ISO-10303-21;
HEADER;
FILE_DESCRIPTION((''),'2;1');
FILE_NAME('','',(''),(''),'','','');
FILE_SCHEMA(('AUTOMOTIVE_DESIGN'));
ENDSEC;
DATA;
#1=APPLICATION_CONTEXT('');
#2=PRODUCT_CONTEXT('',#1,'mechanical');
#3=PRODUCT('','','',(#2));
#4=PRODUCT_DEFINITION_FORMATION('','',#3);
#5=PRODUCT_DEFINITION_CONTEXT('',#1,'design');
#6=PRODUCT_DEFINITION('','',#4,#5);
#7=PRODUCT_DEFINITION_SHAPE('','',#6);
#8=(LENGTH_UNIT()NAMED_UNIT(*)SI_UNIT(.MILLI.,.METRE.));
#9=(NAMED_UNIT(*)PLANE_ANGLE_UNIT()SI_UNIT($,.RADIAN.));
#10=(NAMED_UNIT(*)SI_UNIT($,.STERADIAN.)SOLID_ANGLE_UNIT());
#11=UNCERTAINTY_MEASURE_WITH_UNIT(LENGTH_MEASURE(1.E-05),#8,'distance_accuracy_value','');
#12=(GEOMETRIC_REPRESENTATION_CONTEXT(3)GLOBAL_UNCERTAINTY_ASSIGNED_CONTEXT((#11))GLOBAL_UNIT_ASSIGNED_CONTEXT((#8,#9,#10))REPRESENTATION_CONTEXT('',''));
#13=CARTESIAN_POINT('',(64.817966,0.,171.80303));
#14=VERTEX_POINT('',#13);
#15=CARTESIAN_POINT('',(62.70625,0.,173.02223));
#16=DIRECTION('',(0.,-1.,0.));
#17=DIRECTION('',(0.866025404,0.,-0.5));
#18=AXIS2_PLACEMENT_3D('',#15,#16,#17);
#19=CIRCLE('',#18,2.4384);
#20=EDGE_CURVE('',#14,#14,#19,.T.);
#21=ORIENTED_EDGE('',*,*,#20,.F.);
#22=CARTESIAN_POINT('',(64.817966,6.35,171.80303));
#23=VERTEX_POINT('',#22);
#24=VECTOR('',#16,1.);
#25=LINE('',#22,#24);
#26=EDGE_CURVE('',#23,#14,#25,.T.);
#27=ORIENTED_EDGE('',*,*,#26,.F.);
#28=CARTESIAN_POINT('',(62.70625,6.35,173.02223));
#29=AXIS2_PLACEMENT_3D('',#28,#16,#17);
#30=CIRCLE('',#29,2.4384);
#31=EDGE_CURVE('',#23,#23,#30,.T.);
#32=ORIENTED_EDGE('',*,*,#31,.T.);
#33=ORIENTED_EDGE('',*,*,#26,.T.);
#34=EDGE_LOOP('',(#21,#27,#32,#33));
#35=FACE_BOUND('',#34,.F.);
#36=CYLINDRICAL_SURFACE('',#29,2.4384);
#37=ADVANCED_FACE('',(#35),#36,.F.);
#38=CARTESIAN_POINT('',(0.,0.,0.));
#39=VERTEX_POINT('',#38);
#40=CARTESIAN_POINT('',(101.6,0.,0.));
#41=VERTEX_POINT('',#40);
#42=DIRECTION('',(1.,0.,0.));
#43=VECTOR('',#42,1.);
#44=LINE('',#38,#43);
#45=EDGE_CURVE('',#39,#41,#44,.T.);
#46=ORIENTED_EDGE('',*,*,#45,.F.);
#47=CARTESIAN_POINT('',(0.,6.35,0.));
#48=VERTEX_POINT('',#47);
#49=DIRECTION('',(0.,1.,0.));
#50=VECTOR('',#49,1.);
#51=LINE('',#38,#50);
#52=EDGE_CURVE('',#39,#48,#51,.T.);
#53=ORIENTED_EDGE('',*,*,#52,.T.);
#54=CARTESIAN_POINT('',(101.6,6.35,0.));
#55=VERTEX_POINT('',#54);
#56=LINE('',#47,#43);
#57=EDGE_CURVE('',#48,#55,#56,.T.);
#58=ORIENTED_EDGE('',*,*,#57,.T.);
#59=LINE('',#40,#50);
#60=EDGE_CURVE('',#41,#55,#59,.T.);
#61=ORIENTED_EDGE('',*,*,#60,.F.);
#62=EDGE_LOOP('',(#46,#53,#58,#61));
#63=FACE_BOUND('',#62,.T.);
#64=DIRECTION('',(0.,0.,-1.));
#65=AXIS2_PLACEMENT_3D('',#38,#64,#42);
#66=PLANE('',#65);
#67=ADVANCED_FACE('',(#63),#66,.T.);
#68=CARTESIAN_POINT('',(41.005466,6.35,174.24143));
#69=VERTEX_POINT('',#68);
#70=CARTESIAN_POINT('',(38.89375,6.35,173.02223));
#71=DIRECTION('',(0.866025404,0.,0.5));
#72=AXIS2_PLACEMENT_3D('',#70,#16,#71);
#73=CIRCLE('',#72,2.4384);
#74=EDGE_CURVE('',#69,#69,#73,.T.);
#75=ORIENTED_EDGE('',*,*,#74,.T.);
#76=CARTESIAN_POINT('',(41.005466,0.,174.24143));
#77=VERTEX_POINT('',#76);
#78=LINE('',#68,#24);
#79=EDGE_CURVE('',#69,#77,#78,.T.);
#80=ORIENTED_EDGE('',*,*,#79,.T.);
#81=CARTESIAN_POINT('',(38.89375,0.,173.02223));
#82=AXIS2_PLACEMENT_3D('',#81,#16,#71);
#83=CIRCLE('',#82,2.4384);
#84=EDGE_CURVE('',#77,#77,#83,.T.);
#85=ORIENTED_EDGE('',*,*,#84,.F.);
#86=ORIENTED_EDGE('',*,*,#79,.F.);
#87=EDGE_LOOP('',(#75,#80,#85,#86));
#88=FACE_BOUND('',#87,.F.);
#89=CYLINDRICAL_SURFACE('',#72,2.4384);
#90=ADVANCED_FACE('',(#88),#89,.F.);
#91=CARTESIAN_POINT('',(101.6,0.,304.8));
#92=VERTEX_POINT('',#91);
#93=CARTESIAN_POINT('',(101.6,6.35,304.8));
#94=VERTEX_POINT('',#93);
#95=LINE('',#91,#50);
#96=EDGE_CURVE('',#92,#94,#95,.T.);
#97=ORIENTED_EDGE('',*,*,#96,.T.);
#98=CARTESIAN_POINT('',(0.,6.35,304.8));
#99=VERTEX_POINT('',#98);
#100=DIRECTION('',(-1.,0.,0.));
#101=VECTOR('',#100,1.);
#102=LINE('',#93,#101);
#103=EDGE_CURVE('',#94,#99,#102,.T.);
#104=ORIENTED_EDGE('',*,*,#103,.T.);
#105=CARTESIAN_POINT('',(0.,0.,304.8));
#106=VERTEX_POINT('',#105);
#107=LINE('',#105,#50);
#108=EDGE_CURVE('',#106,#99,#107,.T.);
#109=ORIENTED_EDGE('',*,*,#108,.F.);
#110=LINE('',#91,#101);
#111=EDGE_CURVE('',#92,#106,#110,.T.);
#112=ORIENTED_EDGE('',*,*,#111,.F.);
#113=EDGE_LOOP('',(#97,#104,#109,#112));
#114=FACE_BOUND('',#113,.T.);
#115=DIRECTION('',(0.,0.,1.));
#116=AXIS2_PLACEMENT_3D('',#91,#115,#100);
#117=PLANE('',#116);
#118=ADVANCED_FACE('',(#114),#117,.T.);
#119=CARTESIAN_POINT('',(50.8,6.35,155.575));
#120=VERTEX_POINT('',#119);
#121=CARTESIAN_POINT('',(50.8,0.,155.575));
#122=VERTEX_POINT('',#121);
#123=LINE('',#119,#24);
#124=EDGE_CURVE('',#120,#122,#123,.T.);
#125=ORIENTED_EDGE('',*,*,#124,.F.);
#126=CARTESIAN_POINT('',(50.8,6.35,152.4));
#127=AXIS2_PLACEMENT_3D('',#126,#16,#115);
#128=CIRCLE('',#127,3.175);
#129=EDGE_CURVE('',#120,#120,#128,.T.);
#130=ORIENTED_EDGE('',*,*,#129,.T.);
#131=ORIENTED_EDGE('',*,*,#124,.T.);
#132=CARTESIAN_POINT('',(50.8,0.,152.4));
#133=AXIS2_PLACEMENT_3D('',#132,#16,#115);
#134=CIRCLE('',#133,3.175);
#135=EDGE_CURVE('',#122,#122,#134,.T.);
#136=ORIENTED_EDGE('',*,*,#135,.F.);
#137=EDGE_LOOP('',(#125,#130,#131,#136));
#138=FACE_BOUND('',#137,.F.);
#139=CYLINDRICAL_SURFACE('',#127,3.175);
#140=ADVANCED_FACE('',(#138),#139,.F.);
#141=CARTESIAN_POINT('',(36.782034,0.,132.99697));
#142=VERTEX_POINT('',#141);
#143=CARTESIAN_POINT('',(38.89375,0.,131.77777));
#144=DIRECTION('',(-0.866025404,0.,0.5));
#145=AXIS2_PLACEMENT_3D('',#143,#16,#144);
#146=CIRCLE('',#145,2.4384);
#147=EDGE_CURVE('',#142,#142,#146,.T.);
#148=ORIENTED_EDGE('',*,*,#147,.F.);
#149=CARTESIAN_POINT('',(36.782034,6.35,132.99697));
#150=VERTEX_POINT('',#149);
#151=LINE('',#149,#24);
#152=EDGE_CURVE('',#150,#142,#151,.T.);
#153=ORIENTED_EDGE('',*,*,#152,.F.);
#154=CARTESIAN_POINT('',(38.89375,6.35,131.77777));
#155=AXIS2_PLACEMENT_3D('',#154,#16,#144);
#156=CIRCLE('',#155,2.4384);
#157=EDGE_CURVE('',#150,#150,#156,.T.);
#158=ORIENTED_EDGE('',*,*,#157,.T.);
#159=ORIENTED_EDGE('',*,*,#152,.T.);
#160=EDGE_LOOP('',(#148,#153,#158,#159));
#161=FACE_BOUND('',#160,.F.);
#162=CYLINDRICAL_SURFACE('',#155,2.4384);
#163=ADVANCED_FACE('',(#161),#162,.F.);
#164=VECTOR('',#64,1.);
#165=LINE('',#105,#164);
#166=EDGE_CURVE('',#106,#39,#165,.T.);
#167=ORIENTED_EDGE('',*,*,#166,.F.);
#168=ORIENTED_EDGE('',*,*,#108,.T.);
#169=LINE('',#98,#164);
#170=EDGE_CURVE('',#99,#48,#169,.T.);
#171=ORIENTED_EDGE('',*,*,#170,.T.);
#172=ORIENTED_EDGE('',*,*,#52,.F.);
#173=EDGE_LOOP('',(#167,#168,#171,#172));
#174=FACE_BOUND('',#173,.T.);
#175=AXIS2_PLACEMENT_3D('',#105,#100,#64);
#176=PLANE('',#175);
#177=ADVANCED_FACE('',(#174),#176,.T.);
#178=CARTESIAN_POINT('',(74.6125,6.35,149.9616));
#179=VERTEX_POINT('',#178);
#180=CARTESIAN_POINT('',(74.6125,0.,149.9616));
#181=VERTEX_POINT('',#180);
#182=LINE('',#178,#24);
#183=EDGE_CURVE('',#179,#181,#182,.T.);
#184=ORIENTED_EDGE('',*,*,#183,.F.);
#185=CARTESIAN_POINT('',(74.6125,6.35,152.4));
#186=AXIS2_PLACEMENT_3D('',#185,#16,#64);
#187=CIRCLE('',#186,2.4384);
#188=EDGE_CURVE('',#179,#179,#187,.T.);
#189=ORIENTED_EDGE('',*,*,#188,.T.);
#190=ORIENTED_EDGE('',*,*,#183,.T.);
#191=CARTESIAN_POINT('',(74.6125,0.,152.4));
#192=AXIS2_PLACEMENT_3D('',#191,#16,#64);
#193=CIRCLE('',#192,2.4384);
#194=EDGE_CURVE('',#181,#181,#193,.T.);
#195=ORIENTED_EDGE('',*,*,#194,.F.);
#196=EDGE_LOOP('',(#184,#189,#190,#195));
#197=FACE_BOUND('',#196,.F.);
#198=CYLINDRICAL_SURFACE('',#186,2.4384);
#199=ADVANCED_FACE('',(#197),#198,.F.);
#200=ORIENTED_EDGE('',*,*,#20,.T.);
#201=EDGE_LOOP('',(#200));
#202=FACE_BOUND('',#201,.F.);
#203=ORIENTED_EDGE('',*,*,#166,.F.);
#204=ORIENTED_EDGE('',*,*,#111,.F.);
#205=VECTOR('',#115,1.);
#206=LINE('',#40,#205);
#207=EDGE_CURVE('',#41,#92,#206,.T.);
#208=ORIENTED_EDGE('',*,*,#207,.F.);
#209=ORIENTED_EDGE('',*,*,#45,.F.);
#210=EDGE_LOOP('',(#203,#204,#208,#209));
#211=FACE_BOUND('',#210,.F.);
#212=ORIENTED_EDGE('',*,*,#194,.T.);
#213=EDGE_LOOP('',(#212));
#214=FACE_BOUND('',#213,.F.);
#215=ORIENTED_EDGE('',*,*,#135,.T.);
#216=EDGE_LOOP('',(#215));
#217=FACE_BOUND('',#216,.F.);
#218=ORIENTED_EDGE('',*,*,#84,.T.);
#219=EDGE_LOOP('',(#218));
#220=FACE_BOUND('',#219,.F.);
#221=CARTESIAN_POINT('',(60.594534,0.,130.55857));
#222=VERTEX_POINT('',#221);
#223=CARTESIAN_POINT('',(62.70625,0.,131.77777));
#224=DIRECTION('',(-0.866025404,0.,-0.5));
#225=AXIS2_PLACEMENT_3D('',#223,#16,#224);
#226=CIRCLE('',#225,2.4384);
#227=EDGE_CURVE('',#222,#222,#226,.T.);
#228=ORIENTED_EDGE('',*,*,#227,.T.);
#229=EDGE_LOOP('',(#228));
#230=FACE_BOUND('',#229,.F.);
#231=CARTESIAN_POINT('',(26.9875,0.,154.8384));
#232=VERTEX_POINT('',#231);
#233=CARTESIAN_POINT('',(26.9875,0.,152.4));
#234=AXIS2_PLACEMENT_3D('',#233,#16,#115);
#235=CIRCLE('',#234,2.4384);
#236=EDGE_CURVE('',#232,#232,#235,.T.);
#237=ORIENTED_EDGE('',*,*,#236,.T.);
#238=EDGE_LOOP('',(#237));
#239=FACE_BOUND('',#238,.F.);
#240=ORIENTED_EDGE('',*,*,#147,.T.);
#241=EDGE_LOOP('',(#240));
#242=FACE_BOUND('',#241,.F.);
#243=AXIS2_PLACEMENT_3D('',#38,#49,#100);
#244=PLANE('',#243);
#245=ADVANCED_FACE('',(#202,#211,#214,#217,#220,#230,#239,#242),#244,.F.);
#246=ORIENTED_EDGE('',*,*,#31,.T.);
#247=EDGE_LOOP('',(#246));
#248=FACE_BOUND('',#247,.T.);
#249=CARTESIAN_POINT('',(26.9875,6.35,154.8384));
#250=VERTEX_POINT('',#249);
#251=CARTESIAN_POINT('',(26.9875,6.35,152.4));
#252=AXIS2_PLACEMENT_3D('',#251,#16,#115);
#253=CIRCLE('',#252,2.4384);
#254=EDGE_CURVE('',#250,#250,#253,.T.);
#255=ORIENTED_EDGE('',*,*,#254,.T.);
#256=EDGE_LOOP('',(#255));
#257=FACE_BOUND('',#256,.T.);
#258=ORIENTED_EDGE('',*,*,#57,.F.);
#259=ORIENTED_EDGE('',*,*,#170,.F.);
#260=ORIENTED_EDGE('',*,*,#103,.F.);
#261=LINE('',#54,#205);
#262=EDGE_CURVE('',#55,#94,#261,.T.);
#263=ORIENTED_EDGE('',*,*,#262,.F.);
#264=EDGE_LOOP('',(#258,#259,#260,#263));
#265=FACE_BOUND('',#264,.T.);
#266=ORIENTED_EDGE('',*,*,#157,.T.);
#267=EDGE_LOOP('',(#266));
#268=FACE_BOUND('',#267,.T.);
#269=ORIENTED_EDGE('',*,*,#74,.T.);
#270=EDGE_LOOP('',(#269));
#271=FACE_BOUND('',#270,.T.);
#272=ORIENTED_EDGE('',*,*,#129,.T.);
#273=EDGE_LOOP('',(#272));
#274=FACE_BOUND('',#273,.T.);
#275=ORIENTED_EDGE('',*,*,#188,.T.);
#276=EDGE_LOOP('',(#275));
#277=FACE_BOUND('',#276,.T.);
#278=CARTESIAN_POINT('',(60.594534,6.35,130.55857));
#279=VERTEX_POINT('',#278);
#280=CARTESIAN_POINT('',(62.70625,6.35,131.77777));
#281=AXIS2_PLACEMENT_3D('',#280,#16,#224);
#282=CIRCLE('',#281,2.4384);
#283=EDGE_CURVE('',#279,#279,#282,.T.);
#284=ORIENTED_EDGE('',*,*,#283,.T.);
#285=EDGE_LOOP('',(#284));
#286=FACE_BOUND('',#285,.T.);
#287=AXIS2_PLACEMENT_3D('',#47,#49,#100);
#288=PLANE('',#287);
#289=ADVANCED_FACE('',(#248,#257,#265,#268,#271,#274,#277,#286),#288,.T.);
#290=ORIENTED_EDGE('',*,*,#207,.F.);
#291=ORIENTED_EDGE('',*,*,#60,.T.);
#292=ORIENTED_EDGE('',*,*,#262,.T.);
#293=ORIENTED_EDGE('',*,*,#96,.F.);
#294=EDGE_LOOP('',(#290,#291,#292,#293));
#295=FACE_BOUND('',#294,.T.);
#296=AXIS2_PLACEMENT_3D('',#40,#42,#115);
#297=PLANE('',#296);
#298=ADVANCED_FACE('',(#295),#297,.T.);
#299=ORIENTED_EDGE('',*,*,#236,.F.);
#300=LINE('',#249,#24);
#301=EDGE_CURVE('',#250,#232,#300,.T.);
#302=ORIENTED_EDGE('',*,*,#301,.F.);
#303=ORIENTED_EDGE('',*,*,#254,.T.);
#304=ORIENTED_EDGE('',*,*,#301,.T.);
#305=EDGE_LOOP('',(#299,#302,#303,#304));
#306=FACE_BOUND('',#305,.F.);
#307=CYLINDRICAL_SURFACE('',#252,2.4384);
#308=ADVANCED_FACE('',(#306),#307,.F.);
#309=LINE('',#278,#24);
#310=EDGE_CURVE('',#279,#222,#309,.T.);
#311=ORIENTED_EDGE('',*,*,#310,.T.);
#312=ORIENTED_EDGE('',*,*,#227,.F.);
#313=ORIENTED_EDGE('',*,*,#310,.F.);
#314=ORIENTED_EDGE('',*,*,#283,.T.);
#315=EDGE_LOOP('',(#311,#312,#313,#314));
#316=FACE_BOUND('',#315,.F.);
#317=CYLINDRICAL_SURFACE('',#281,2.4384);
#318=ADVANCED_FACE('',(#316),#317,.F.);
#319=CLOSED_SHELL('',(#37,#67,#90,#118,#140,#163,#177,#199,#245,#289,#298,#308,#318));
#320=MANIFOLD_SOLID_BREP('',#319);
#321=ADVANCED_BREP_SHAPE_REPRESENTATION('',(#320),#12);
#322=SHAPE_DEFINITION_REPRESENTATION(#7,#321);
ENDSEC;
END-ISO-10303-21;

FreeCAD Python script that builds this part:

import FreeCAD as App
import Part
import Sketcher

V = App.Vector
Q = App.Units.Quantity

doc = App.newDocument("Part")
params = doc.addObject("Spreadsheet::Sheet", "Params")
for row, (alias, value) in enumerate([
    ("sketch1_width", "4 in"),
    ("sketch1_height", "12 in"),
    ("pad1_length", "0.25 in"),
    ("sketch2_diameter", "0.192 in"),
    ("hole_diameter", "0.192 in"),
    ("sketch3_diameter", "0.25 in"),
    ("hole2_diameter", "0.25 in"),
], start=1):
    params.set(f"A{row}", alias)
    params.set(f"B{row}", "=" + value)
    params.setAlias(f"B{row}", alias)

body = doc.addObject("PartDesign::Body", "Body")

# Sketch on XZ plane
sketch1 = body.newObject("Sketcher::SketchObject", "Sketch")
sketch1.AttachmentSupport = (doc.getObject("XZ_Plane"), [""])
sketch1.MapMode = "FlatFace"
sketch1.addGeometry([
    Part.LineSegment(V(102, 0, 0), V(0, 0, 0)),
    Part.LineSegment(V(0, 0, 0), V(0, 305, 0)),
    Part.LineSegment(V(0, 305, 0), V(102, 305, 0)),
    Part.LineSegment(V(102, 305, 0), V(102, 0, 0)),
], False)
sketch1.addConstraint([
    Sketcher.Constraint("Coincident", 0, 2, 1, 1),
    Sketcher.Constraint("Coincident", 1, 2, 2, 1),
    Sketcher.Constraint("Coincident", 2, 2, 3, 1),
    Sketcher.Constraint("Coincident", 3, 2, 0, 1),
    Sketcher.Constraint("Horizontal", 0),
    Sketcher.Constraint("Vertical", 1),
    Sketcher.Constraint("Horizontal", 2),
    Sketcher.Constraint("Vertical", 3),
    Sketcher.Constraint("Coincident", 0, 2, -1, 1),
    Sketcher.Constraint("DistanceX", 0, 2, 0, 1, Q("4 in")),
    Sketcher.Constraint("DistanceY", 1, 1, 1, 2, Q("12 in")),
])
sketch1.setExpression("Constraints[9]", "Params.sketch1_width")
sketch1.setExpression("Constraints[10]", "Params.sketch1_height")
pad1 = body.newObject("PartDesign::Pad", "Pad")
pad1.Profile = sketch1
pad1.setExpression("Length", "Params.pad1_length")
pad1.Reversed = True

# Sketch on XZ plane
sketch2 = body.newObject("Sketcher::SketchObject", "Sketch001")
sketch2.AttachmentSupport = (doc.getObject("XZ_Plane"), [""])
sketch2.MapMode = "FlatFace"
sketch2.AttachmentOffset = App.Placement(V(0, 0, -0.25 * 25.4), App.Rotation())
sketch2.addGeometry(Part.Circle(V(27, 152.4, 0), V(0, 0, 1), 2.4), False)
sketch2.addConstraint([
    Sketcher.Constraint("Diameter", 0, Q("0.192 in")),
    Sketcher.Constraint("DistanceY", -1, 1, 0, 3, Q("6 in")),
    Sketcher.Constraint("DistanceX", -1, 1, 0, 3, Q("1.0625 in")),
])
sketch2.setExpression("Constraints[0]", "Params.sketch2_diameter")
doc.recompute()
hole = body.newObject("PartDesign::Hole", "Hole")
hole.Profile = sketch2
hole.ThreadType = "None"
hole.setExpression("Diameter", "Params.hole_diameter")
hole.DepthType = "ThroughAll"
hole.Reversed = True

# Sketch on XZ plane
sketch3 = body.newObject("Sketcher::SketchObject", "Sketch002")
sketch3.AttachmentSupport = (doc.getObject("XZ_Plane"), [""])
sketch3.MapMode = "FlatFace"
sketch3.AttachmentOffset = App.Placement(V(0, 0, -0.25 * 25.4), App.Rotation())
sketch3.addGeometry(Part.Circle(V(50.8, 152.4, 0), V(0, 0, 1), 3.2), False)
sketch3.addConstraint([
    Sketcher.Constraint("Diameter", 0, Q("0.25 in")),
    Sketcher.Constraint("DistanceX", -1, 1, 0, 3, Q("2 in")),
    Sketcher.Constraint("DistanceY", -1, 1, 0, 3, Q("6 in")),
])
sketch3.setExpression("Constraints[0]", "Params.sketch3_diameter")
doc.recompute()
hole2 = body.newObject("PartDesign::Hole", "Hole001")
hole2.Profile = sketch3
hole2.ThreadType = "None"
hole2.setExpression("Diameter", "Params.hole2_diameter")
hole2.DepthType = "ThroughAll"
hole2.Reversed = True
doc.recompute()

datumline = body.newObject("PartDesign::Line", "DatumLine")
datumline.Placement = App.Placement(V(50.8, 0, 152.4), App.Rotation(V(0, 0, 1), V(0, 1, 0)))
polarpattern = body.newObject("PartDesign::PolarPattern", "PolarPattern")
polarpattern.Originals = [hole]
polarpattern.Axis = (datumline, [""])
polarpattern.Angle = 360
polarpattern.Occurrences = 6
body.Tip = polarpattern

doc.recompute()
